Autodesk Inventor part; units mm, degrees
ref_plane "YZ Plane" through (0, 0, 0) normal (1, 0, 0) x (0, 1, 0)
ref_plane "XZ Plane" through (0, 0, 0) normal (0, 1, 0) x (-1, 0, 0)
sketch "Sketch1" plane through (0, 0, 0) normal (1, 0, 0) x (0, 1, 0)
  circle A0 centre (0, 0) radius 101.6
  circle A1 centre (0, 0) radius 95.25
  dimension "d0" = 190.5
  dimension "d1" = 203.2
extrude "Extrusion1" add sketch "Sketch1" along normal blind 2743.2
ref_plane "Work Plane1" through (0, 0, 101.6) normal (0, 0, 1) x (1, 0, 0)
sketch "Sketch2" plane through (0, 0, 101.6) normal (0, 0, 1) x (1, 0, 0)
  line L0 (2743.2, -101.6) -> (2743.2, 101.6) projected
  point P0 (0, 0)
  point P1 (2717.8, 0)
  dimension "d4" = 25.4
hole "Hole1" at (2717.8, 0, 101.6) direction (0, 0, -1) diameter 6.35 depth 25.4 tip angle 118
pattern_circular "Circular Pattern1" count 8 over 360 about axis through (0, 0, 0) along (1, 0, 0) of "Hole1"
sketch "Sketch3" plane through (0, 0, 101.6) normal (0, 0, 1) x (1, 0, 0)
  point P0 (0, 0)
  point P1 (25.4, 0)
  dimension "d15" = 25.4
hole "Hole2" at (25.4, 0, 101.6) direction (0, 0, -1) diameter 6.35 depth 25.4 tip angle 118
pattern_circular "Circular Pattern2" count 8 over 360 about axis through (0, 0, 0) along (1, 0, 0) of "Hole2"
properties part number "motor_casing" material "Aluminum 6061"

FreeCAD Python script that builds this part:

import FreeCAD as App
import Part
import Sketcher

V = App.Vector
Q = App.Units.Quantity

doc = App.newDocument("Part")
body = doc.addObject("PartDesign::Body", "Body")

sketch1 = body.newObject("Sketcher::SketchObject", "Sketch")
sketch1.AttachmentSupport = (doc.getObject("YZ_Plane"), [""])
sketch1.MapMode = "FlatFace"
sketch1.addGeometry(Part.Circle(V(0, 0, 0), V(0, 0, 1), 102), False)
sketch1.addGeometry(Part.Circle(V(0, 0, 0), V(0, 0, 1), 95), False)
sketch1.addConstraint(Sketcher.Constraint("Coincident", 0, 3, -1, 1))
sketch1.addConstraint(Sketcher.Constraint("Coincident", 1, 3, -1, 1))
sketch1.addConstraint(Sketcher.Constraint("Diameter", 0, Q("8 in")))
sketch1.addConstraint(Sketcher.Constraint("Diameter", 1, Q("7.5 in")))
pad1 = body.newObject("PartDesign::Pad", "Pad")
pad1.Profile = sketch1
pad1.Length = Q("108 in")

sketch2 = body.newObject("Sketcher::SketchObject", "Sketch001")
sketch2.AttachmentSupport = (doc.getObject("XY_Plane"), [""])
sketch2.MapMode = "FlatFace"
sketch2.AttachmentOffset = App.Placement(V(0, 0, 4 * 25.4), App.Rotation())
sketch2.addGeometry(Part.Circle(V(2717.8, 0, 0), V(0, 0, 1), 3.2), False)
sketch2.addConstraint(Sketcher.Constraint("PointOnObject", 0, 3, -1))
sketch2.addConstraint(Sketcher.Constraint("Diameter", 0, Q("0.25 in")))
sketch2.addConstraint(Sketcher.Constraint("DistanceX", -1, 1, 0, 3, Q("107 in")))
doc.recompute()
hole = body.newObject("PartDesign::Hole", "Hole")
hole.Profile = sketch2
hole.ThreadType = "None"
hole.Diameter = Q("0.25 in")
hole.DepthType = "Dimension"
hole.Depth = Q("1 in")
hole.DrillPoint = "Angled"
hole.DrillPointAngle = 118
doc.recompute()

polarpattern = body.newObject("PartDesign::PolarPattern", "PolarPattern")
polarpattern.Originals = [hole]
polarpattern.Axis = (doc.getObject("X_Axis"), [""])
polarpattern.Angle = 360
polarpattern.Occurrences = 8
body.Tip = polarpattern

sketch3 = body.newObject("Sketcher::SketchObject", "Sketch002")
sketch3.AttachmentSupport = (doc.getObject("XY_Plane"), [""])
sketch3.MapMode = "FlatFace"
sketch3.AttachmentOffset = App.Placement(V(0, 0, 4 * 25.4), App.Rotation())
sketch3.addGeometry(Part.Circle(V(25.4, 0, 0), V(0, 0, 1), 3.2), False)
sketch3.addConstraint(Sketcher.Constraint("PointOnObject", 0, 3, -1))
sketch3.addConstraint(Sketcher.Constraint("Diameter", 0, Q("0.25 in")))
sketch3.addConstraint(Sketcher.Constraint("DistanceX", -1, 1, 0, 3, Q("1 in")))
doc.recompute()
hole2 = body.newObject("PartDesign::Hole", "Hole001")
hole2.Profile = sketch3
hole2.ThreadType = "None"
hole2.Diameter = Q("0.25 in")
hole2.DepthType = "Dimension"
hole2.Depth = Q("1 in")
hole2.DrillPoint = "Angled"
hole2.DrillPointAngle = 118
doc.recompute()

polarpattern2 = body.newObject("PartDesign::PolarPattern", "PolarPattern001")
polarpattern2.Originals = [hole2]
polarpattern2.Axis = (doc.getObject("X_Axis"), [""])
polarpattern2.Angle = 360
polarpattern2.Occurrences = 8
body.Tip = polarpattern2

doc.recompute()
